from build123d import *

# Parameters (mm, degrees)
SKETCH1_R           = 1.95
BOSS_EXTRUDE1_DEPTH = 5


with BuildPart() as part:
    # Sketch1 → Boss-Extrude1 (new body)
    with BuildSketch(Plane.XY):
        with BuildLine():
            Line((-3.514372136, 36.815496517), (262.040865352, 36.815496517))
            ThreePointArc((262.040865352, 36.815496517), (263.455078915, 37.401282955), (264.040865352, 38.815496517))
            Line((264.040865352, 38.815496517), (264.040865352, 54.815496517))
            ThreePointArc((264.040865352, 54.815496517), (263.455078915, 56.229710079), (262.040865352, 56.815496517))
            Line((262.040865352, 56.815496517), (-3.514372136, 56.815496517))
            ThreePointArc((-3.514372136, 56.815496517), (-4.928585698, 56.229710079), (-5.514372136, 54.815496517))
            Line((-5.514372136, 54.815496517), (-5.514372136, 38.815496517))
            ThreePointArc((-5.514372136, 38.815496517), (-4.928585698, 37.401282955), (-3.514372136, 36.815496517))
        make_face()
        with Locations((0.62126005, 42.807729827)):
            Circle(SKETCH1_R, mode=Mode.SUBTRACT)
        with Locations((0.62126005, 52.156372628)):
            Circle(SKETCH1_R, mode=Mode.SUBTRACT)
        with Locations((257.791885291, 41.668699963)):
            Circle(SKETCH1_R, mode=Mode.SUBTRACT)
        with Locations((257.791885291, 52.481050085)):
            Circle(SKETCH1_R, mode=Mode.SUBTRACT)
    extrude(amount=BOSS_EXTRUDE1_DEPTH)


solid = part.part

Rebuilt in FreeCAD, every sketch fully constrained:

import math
import FreeCAD as App
import Part
import Sketcher

V = App.Vector

doc = App.newDocument("Part")
body = doc.addObject("PartDesign::Body", "Body")

sketch1 = body.newObject("Sketcher::SketchObject", "Sketch")
sketch1.AttachmentSupport = (doc.getObject("XY_Plane"), [""])
sketch1.MapMode = "FlatFace"
sketch1.addGeometry([
    Part.LineSegment(V(-3.5, 36.8, 0), V(262, 36.8, 0)),
    Part.ArcOfCircle(Part.Circle(V(262, 38.8, 0), V(0, 0, 1), 2), math.radians(-90), math.radians(0)),
    Part.LineSegment(V(264, 38.8, 0), V(264, 54.8, 0)),
    Part.ArcOfCircle(Part.Circle(V(262, 54.8, 0), V(0, 0, 1), 2), math.radians(0), math.radians(90)),
    Part.LineSegment(V(262, 56.8, 0), V(-3.5, 56.8, 0)),
    Part.ArcOfCircle(Part.Circle(V(-3.5, 54.8, 0), V(0, 0, 1), 2), math.radians(90), math.radians(180)),
    Part.LineSegment(V(-5.5, 54.8, 0), V(-5.5, 38.8, 0)),
    Part.ArcOfCircle(Part.Circle(V(-3.5, 38.8, 0), V(0, 0, 1), 2), math.radians(-180), math.radians(-90)),
    Part.Circle(V(0.6, 42.8, 0), V(0, 0, 1), 1.9),
    Part.Circle(V(257.8, 41.7, 0), V(0, 0, 1), 1.9),
    Part.Circle(V(0.6, 52.2, 0), V(0, 0, 1), 1.9),
    Part.Circle(V(257.8, 52.5, 0), V(0, 0, 1), 1.9),
], False)
sketch1.addConstraint([
    Sketcher.Constraint("Tangent", 0, 2, 1, 1),
    Sketcher.Constraint("Tangent", 1, 2, 2, 1),
    Sketcher.Constraint("Tangent", 2, 2, 3, 1),
    Sketcher.Constraint("Tangent", 3, 2, 4, 1),
    Sketcher.Constraint("Tangent", 4, 2, 5, 1),
    Sketcher.Constraint("Tangent", 5, 2, 6, 1),
    Sketcher.Constraint("Tangent", 6, 2, 7, 1),
    Sketcher.Constraint("Tangent", 7, 2, 0, 1),
    Sketcher.Constraint("Horizontal", 0),
    Sketcher.Constraint("Vertical", 2),
    Sketcher.Constraint("Horizontal", 4),
    Sketcher.Constraint("Vertical", 6),
    Sketcher.Constraint("Equal", 1, 3),
    Sketcher.Constraint("Equal", 3, 5),
    Sketcher.Constraint("Equal", 5, 7),
    Sketcher.Constraint("Equal", 8, 9),
    Sketcher.Constraint("Equal", 9, 10),
    Sketcher.Constraint("Equal", 10, 11),
    Sketcher.Constraint("Vertical", 8, 3, 10, 3),
    Sketcher.Constraint("Vertical", 9, 3, 11, 3),
    Sketcher.Constraint("Radius", 1, 2.0),
    Sketcher.Constraint("Diameter", 8, 3.9),
    Sketcher.Constraint("DistanceY", 2, 1, 2, 2, 16.0),
    Sketcher.Constraint("DistanceY", -1, 1, 9, 3, 41.6687),
    Sketcher.Constraint("DistanceX", 0, 1, 0, 2, 265.555237),
    Sketcher.Constraint("DistanceX", -1, 1, 8, 3, 0.62126),
    Sketcher.Constraint("DistanceY", -1, 1, 8, 3, 42.80773),
    Sketcher.Constraint("DistanceY", -1, 1, 11, 3, 52.48105),
    Sketcher.Constraint("DistanceX", 9, 3, 1, 3, 4.24898),
    Sketcher.Constraint("DistanceX", -1, 1, 1, 3, 262.040865),
    Sketcher.Constraint("DistanceY", -1, 1, 1, 3, 38.815497),
    Sketcher.Constraint("DistanceY", -1, 1, 10, 3, 52.156373),
])
pad1 = body.newObject("PartDesign::Pad", "Pad")
pad1.Profile = sketch1
pad1.Length = 5

doc.recompute()
